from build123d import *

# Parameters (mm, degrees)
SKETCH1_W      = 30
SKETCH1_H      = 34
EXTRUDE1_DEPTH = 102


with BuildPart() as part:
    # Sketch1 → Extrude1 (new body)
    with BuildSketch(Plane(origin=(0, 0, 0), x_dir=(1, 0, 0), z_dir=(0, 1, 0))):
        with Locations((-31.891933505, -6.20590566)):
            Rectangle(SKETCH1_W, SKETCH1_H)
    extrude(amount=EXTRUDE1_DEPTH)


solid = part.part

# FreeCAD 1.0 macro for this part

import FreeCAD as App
import Part
import Sketcher
from FreeCAD import Vector
Q = App.Units.Quantity


def add_polygon(sketch, points):
    """Adds a closed chain of lines whose ends are joined by coincident constraints."""
    first, n = sketch.GeometryCount, len(points)
    for a, b in zip(points, points[1:] + points[:1]):
        sketch.addGeometry(Part.LineSegment(App.Vector(*a, 0), App.Vector(*b, 0)), False)
    for i in range(n):
        sketch.addConstraint(Sketcher.Constraint("Coincident", first + i, 2, first + (i + 1) % n, 1))

doc = App.newDocument("Part")
body = doc.addObject("PartDesign::Body", "Body")

# Sketch on XZ plane
sketch1 = doc.addObject("Sketcher::SketchObject", "Sketch")
body.addObject(sketch1)
sketch1.AttachmentSupport = (doc.XZ_Plane, [""])
sketch1.MapMode = "FlatFace"
add_polygon(sketch1, [(-47, -11), (-47, 23), (-17, 23), (-17, -11)])  # lines 0-3
sketch1.addConstraint([
    Sketcher.Constraint("Vertical", 0),
    Sketcher.Constraint("Horizontal", 1),
    Sketcher.Constraint("Vertical", 2),
    Sketcher.Constraint("Horizontal", 3),
    Sketcher.Constraint("DistanceX", 1, 1, 1, 2, Q("30 mm")),
    Sketcher.Constraint("DistanceY", 0, 1, 0, 2, Q("34 mm")),
    Sketcher.Constraint("DistanceX", 0, 2, -1, 1, Q("46.891934 mm")),
    Sketcher.Constraint("DistanceY", -1, 1, 0, 2, Q("23.205906 mm")),
])
pad1 = doc.addObject("PartDesign::Pad", "Pad")
body.addObject(pad1)
pad1.Profile = sketch1
pad1.Length = 102
pad1.Reversed = True

doc.recompute()
